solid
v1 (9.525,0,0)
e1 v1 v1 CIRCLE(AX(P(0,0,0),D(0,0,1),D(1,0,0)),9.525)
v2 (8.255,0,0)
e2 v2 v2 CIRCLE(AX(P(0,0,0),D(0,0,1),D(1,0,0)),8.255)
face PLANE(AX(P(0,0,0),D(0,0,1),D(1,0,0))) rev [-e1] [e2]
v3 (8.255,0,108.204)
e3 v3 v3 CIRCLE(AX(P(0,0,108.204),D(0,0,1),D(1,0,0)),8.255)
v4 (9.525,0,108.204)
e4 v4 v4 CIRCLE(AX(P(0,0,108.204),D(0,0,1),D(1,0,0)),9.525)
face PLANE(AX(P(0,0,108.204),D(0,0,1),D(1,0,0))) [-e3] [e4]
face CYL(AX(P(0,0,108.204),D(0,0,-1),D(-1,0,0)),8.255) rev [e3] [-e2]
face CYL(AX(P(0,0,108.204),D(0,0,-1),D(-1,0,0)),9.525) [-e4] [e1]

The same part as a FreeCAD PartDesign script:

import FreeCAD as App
import Part
import Sketcher
Q = App.Units.Quantity

doc = App.newDocument("Part")
body = doc.addObject("PartDesign::Body", "Body")

# Sketch on XY plane
sketch1 = body.newObject("Sketcher::SketchObject", "Sketch")
sketch1.AttachmentSupport = (doc.getObject("XY_Plane"), [""])
sketch1.MapMode = "FlatFace"
sketch1.addGeometry([
    Part.Circle(App.Vector(0, 0, 0), App.Vector(0, 0, 1), 10),
    Part.Circle(App.Vector(0, 0, 0), App.Vector(0, 0, 1), 8),
], False)
sketch1.addConstraint([
    Sketcher.Constraint("Coincident", 0, 3, -1, 1),
    Sketcher.Constraint("Coincident", 1, 3, -1, 1),
    Sketcher.Constraint("Diameter", 0, Q("0.75 in")),
    Sketcher.Constraint("Diameter", 1, Q("0.65 in")),
])
pad1 = body.newObject("PartDesign::Pad", "Pad")
pad1.Profile = sketch1
pad1.Length = Q("4.26 in")

doc.recompute()
